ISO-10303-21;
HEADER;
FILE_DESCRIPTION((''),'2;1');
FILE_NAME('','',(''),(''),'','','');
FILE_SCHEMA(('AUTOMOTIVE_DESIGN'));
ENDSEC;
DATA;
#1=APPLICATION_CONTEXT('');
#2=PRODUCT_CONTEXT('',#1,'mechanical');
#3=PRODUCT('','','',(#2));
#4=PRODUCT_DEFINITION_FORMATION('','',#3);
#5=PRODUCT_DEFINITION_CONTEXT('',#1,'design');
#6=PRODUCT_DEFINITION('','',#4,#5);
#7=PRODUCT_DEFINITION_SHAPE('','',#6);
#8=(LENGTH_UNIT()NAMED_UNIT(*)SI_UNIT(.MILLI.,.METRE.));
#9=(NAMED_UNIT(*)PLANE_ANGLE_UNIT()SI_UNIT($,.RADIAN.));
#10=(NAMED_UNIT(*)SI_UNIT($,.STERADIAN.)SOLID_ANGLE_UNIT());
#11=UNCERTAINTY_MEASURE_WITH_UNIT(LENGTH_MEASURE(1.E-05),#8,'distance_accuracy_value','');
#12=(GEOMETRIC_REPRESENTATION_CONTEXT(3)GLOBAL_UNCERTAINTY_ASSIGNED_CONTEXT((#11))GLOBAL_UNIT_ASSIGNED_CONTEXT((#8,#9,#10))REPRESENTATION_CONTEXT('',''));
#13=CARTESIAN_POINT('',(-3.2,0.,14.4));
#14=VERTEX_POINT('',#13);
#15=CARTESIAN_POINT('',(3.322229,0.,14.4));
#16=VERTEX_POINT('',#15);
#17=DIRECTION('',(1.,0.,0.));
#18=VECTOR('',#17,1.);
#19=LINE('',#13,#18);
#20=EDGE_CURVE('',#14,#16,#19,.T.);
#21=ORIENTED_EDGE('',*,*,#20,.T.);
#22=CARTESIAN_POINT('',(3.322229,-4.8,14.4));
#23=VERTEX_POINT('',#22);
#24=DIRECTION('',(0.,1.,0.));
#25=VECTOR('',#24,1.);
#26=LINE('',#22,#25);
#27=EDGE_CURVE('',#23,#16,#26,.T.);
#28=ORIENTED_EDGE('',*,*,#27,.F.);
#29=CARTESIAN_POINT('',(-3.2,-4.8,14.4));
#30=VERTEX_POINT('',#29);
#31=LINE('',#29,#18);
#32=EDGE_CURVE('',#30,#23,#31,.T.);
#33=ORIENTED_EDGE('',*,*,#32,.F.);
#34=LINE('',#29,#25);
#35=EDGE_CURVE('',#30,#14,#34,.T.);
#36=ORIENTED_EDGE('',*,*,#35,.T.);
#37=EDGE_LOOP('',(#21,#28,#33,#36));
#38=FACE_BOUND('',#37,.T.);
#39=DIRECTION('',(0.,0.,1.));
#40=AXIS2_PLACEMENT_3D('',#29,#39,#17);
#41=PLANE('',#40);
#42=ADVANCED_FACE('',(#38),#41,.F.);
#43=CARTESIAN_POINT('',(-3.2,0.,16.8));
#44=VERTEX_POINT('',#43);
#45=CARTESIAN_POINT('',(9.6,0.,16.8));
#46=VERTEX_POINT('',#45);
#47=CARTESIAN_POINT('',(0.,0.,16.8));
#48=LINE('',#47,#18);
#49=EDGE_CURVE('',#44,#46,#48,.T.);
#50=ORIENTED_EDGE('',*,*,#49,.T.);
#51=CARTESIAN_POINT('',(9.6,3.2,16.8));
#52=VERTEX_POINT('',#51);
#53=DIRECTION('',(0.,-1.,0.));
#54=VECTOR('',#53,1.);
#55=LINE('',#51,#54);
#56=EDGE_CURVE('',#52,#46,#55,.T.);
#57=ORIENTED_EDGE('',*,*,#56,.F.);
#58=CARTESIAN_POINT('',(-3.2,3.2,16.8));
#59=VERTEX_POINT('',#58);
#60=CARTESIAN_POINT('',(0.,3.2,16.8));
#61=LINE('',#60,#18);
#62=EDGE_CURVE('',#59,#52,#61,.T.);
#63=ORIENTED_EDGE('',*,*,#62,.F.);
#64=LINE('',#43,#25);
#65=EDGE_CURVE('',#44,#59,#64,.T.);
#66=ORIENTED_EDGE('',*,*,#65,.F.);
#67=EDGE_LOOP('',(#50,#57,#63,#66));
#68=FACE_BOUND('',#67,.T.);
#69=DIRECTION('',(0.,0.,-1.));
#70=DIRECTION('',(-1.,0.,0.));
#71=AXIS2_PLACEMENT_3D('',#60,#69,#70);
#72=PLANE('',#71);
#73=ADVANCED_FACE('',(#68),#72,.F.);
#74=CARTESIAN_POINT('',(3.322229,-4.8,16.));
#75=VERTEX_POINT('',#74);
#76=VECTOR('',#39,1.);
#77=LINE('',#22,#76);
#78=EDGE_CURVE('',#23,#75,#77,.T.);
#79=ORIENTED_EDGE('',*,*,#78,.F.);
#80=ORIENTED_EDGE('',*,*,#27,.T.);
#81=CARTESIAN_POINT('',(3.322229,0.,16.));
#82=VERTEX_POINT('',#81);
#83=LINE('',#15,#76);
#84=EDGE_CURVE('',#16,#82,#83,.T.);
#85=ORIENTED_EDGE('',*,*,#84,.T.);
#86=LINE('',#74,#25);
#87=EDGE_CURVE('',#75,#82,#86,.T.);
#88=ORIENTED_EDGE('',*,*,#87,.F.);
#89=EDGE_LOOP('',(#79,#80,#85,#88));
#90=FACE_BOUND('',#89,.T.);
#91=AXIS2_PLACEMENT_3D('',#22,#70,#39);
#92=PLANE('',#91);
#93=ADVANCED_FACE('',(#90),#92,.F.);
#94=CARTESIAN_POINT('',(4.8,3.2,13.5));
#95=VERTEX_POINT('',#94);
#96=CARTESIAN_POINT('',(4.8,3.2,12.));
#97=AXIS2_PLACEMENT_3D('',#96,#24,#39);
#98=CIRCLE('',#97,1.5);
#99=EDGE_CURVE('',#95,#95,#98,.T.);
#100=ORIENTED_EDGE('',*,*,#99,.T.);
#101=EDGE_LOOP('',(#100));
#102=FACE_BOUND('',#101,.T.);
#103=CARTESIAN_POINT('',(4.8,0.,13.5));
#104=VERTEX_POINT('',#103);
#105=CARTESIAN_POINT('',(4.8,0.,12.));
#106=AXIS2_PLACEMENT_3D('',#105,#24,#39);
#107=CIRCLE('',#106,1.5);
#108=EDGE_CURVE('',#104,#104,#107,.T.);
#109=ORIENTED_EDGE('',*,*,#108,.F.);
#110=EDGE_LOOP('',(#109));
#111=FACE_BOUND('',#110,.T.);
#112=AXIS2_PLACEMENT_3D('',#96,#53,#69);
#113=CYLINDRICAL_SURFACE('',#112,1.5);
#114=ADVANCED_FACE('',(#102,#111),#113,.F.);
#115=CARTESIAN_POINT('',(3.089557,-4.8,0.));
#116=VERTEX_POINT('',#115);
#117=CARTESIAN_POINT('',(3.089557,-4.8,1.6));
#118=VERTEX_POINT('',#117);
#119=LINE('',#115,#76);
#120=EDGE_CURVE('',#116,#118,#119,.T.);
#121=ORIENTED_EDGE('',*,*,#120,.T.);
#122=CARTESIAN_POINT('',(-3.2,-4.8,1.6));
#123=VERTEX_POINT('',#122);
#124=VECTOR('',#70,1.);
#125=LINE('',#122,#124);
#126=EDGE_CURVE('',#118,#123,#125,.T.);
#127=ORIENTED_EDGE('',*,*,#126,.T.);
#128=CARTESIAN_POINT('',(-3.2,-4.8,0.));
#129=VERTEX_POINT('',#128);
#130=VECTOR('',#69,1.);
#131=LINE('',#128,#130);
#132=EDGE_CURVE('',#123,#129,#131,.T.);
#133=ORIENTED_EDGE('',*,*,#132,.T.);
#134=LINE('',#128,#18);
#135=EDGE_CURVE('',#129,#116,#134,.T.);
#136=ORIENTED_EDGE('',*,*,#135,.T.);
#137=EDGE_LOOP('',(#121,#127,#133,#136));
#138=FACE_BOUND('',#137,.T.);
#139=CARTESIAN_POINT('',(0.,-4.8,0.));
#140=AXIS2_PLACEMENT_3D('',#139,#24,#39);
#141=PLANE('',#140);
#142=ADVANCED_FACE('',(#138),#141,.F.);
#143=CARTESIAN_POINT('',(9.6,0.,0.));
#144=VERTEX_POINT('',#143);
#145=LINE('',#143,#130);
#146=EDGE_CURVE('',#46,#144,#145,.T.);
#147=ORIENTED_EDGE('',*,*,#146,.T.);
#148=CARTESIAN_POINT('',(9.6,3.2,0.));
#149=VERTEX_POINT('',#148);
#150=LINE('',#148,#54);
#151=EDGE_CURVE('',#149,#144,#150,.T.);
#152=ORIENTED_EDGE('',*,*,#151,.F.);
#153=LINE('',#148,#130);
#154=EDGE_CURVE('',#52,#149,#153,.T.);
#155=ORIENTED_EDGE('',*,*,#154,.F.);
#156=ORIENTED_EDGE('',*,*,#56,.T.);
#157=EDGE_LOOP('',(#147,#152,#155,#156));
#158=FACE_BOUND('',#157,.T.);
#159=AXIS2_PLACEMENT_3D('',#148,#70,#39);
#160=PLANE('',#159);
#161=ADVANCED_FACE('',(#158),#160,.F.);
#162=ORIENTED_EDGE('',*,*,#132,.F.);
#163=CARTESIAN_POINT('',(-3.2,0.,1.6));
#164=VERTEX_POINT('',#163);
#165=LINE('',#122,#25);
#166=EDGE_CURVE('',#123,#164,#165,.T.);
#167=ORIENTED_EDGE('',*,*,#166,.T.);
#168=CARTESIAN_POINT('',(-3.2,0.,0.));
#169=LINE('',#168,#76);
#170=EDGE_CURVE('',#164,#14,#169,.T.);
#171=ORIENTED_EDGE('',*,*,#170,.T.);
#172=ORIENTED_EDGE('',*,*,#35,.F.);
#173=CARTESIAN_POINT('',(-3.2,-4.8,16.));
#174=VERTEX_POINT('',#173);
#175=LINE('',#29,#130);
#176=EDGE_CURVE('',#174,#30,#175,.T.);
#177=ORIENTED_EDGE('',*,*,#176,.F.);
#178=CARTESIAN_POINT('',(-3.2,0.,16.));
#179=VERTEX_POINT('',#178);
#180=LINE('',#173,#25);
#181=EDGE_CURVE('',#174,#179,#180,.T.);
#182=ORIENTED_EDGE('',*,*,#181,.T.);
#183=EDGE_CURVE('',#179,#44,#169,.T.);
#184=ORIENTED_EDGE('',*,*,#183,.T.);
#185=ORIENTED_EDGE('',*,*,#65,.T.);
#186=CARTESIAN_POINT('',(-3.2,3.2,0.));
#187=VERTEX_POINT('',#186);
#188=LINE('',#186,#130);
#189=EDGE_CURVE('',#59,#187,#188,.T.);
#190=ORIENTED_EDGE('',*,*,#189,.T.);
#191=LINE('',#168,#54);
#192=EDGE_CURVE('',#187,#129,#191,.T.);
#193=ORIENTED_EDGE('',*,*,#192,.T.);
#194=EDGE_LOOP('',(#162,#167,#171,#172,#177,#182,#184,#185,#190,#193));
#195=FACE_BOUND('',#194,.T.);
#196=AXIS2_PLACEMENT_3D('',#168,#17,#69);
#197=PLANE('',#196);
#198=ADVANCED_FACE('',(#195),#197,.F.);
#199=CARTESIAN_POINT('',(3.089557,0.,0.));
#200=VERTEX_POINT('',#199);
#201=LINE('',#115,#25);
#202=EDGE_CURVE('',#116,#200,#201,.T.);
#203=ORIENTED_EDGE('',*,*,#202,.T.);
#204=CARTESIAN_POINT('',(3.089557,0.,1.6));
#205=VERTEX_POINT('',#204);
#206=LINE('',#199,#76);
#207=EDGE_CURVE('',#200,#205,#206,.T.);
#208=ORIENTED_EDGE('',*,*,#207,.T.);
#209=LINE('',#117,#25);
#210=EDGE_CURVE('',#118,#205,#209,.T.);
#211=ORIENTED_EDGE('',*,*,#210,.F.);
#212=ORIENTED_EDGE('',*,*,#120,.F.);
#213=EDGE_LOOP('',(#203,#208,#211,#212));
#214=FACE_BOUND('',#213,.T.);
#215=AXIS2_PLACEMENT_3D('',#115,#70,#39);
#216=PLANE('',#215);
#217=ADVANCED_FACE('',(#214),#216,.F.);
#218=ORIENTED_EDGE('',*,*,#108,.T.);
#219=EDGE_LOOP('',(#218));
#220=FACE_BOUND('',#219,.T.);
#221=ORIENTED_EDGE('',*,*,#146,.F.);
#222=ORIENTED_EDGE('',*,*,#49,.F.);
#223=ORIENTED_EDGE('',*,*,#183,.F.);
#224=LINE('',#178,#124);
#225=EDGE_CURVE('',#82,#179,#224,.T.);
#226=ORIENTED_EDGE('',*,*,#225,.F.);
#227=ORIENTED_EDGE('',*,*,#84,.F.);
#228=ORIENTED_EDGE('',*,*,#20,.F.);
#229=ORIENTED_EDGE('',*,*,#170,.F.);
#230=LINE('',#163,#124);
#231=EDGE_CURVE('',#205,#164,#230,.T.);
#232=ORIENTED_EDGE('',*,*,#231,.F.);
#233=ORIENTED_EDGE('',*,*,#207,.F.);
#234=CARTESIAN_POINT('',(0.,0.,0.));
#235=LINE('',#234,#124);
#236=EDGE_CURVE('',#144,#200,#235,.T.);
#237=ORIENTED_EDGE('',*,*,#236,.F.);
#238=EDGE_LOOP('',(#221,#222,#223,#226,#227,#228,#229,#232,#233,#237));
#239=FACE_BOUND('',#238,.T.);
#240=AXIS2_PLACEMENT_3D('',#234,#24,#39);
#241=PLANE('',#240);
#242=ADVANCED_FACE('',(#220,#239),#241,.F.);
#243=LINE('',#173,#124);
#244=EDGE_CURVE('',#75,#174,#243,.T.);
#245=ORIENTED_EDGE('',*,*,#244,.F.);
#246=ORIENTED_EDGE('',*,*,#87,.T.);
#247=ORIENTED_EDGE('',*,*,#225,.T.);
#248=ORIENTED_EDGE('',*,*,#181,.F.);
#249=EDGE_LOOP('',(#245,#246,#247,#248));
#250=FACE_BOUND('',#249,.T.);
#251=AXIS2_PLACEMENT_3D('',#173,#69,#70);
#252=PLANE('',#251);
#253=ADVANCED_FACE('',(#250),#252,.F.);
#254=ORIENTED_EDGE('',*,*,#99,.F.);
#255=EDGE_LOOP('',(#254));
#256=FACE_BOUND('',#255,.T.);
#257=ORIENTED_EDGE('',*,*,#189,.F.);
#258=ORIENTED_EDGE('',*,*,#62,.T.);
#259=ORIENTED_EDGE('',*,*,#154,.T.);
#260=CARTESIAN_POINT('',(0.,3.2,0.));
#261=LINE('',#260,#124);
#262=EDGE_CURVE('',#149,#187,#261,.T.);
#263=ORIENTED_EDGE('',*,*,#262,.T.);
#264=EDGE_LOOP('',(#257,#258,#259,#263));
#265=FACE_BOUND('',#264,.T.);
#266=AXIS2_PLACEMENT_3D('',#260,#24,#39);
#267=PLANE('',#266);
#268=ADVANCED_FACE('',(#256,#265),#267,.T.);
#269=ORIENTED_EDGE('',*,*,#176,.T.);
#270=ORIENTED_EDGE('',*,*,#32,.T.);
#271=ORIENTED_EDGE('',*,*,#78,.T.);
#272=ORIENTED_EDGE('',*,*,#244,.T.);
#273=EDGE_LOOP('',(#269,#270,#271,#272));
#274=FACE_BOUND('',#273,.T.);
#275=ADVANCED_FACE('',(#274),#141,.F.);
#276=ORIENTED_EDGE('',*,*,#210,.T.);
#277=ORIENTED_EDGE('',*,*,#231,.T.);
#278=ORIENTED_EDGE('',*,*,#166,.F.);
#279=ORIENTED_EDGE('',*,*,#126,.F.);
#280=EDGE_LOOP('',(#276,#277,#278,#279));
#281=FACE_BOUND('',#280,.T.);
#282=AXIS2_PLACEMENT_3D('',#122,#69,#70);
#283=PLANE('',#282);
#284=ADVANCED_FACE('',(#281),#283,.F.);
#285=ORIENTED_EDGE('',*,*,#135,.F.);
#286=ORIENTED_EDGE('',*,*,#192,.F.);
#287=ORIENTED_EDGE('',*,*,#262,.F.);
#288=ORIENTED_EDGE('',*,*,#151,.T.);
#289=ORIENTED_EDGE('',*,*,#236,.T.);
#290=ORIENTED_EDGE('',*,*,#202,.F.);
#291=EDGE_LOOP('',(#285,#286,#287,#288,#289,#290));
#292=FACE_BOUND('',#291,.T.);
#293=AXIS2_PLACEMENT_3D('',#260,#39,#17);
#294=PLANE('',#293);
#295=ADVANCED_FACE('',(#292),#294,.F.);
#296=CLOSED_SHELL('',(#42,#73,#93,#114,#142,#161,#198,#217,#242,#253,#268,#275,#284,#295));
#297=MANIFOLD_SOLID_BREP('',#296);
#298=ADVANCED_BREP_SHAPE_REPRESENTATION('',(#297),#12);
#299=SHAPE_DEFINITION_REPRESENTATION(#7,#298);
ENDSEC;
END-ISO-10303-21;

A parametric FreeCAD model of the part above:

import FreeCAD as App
import Part
import Sketcher

V = App.Vector


def add_polygon(sketch, points):
    """Adds a closed chain of lines whose ends are joined by coincident constraints."""
    first, n = sketch.GeometryCount, len(points)
    for a, b in zip(points, points[1:] + points[:1]):
        sketch.addGeometry(Part.LineSegment(App.Vector(*a, 0), App.Vector(*b, 0)), False)
    for i in range(n):
        sketch.addConstraint(Sketcher.Constraint("Coincident", first + i, 2, first + (i + 1) % n, 1))

doc = App.newDocument("Part")
body = doc.addObject("PartDesign::Body", "Body")

sketch1 = doc.addObject("Sketcher::SketchObject", "Sketch")
body.addObject(sketch1)
sketch1.AttachmentSupport = (doc.XZ_Plane, [""])
sketch1.MapMode = "FlatFace"
add_polygon(sketch1, [(0, 0), (0, 16.8), (9.6, 16.8), (9.6, 0)])
sketch1.addGeometry(Part.Circle(V(4.8, 12, 0), V(0, 0, 1), 1.5), False)
sketch1.addConstraint(Sketcher.Constraint("Vertical", 0))
sketch1.addConstraint(Sketcher.Constraint("Horizontal", 1))
sketch1.addConstraint(Sketcher.Constraint("Vertical", 2))
sketch1.addConstraint(Sketcher.Constraint("Horizontal", 3))
sketch1.addConstraint(Sketcher.Constraint("Coincident", 3, 2, -1, 1))
sketch1.addConstraint(Sketcher.Constraint("Diameter", 4, 3.0))
sketch1.addConstraint(Sketcher.Constraint("DistanceX", 1, 1, 1, 2, 9.6))
sketch1.addConstraint(Sketcher.Constraint("DistanceY", 0, 1, 0, 2, 16.8))
sketch1.addConstraint(Sketcher.Constraint("DistanceY", -1, 1, 4, 3, 12.0))
sketch1.addConstraint(Sketcher.Constraint("DistanceX", -1, 1, 4, 3, 4.8))
pad1 = doc.addObject("PartDesign::Pad", "Pad")
body.addObject(pad1)
pad1.Profile = sketch1
pad1.Length = 3.2
pad1.Reversed = True

sketch2 = doc.addObject("Sketcher::SketchObject", "Sketch001")
body.addObject(sketch2)
sketch2.AttachmentSupport = (doc.YZ_Plane, [""])
sketch2.MapMode = "FlatFace"
add_polygon(sketch2, [(3.2, 0), (0, 0), (0, 16.8), (3.2, 16.8)])
sketch2.addConstraint(Sketcher.Constraint("Horizontal", 0))
sketch2.addConstraint(Sketcher.Constraint("Vertical", 1))
sketch2.addConstraint(Sketcher.Constraint("Horizontal", 2))
sketch2.addConstraint(Sketcher.Constraint("Vertical", 3))
sketch2.addConstraint(Sketcher.Constraint("Coincident", 0, 2, -1, 1))
sketch2.addConstraint(Sketcher.Constraint("DistanceX", 0, 2, 0, 1, 3.2))
sketch2.addConstraint(Sketcher.Constraint("DistanceY", 1, 1, 1, 2, 16.8))
pad2 = doc.addObject("PartDesign::Pad", "Pad001")
body.addObject(pad2)
pad2.Profile = sketch2
pad2.Length = 3.2
pad2.Reversed = True

sketch3 = doc.addObject("Sketcher::SketchObject", "Sketch002")
body.addObject(sketch3)
sketch3.AttachmentSupport = (doc.XZ_Plane, [""])
sketch3.MapMode = "FlatFace"
add_polygon(sketch3, [(3.322229, 14.4), (3.322229, 16), (-3.2, 16), (-3.2, 14.4)])
sketch3.addConstraint(Sketcher.Constraint("Vertical", 0))
sketch3.addConstraint(Sketcher.Constraint("Horizontal", 1))
sketch3.addConstraint(Sketcher.Constraint("Vertical", 2))
sketch3.addConstraint(Sketcher.Constraint("Horizontal", 3))
sketch3.addConstraint(Sketcher.Constraint("DistanceY", 0, 1, 0, 2, 1.6))
sketch3.addConstraint(Sketcher.Constraint("DistanceY", -1, 1, 0, 2, 16.0))
sketch3.addConstraint(Sketcher.Constraint("DistanceX", 1, 2, -1, 1, 3.2))
sketch3.addConstraint(Sketcher.Constraint("DistanceX", 1, 2, 1, 1, 6.522229))
pad3 = doc.addObject("PartDesign::Pad", "Pad002")
body.addObject(pad3)
pad3.Profile = sketch3
pad3.Length = 4.8

sketch4 = doc.addObject("Sketcher::SketchObject", "Sketch003")
body.addObject(sketch4)
sketch4.AttachmentSupport = (doc.XZ_Plane, [""])
sketch4.MapMode = "FlatFace"
add_polygon(sketch4, [(3.089557, 0), (3.089557, 1.6), (-3.2, 1.6), (-3.2, 0)])
sketch4.addConstraint(Sketcher.Constraint("Vertical", 0))
sketch4.addConstraint(Sketcher.Constraint("Horizontal", 1))
sketch4.addConstraint(Sketcher.Constraint("Vertical", 2))
sketch4.addConstraint(Sketcher.Constraint("Horizontal", 3))
sketch4.addConstraint(Sketcher.Constraint("PointOnObject", 2, 2, -1))
sketch4.addConstraint(Sketcher.Constraint("DistanceY", 0, 1, 0, 2, 1.6))
sketch4.addConstraint(Sketcher.Constraint("DistanceX", 1, 2, -1, 1, 3.2))
sketch4.addConstraint(Sketcher.Constraint("DistanceX", 1, 2, 1, 1, 6.289557))
pad4 = doc.addObject("PartDesign::Pad", "Pad003")
body.addObject(pad4)
pad4.Profile = sketch4
pad4.Length = 4.8

doc.recompute()
